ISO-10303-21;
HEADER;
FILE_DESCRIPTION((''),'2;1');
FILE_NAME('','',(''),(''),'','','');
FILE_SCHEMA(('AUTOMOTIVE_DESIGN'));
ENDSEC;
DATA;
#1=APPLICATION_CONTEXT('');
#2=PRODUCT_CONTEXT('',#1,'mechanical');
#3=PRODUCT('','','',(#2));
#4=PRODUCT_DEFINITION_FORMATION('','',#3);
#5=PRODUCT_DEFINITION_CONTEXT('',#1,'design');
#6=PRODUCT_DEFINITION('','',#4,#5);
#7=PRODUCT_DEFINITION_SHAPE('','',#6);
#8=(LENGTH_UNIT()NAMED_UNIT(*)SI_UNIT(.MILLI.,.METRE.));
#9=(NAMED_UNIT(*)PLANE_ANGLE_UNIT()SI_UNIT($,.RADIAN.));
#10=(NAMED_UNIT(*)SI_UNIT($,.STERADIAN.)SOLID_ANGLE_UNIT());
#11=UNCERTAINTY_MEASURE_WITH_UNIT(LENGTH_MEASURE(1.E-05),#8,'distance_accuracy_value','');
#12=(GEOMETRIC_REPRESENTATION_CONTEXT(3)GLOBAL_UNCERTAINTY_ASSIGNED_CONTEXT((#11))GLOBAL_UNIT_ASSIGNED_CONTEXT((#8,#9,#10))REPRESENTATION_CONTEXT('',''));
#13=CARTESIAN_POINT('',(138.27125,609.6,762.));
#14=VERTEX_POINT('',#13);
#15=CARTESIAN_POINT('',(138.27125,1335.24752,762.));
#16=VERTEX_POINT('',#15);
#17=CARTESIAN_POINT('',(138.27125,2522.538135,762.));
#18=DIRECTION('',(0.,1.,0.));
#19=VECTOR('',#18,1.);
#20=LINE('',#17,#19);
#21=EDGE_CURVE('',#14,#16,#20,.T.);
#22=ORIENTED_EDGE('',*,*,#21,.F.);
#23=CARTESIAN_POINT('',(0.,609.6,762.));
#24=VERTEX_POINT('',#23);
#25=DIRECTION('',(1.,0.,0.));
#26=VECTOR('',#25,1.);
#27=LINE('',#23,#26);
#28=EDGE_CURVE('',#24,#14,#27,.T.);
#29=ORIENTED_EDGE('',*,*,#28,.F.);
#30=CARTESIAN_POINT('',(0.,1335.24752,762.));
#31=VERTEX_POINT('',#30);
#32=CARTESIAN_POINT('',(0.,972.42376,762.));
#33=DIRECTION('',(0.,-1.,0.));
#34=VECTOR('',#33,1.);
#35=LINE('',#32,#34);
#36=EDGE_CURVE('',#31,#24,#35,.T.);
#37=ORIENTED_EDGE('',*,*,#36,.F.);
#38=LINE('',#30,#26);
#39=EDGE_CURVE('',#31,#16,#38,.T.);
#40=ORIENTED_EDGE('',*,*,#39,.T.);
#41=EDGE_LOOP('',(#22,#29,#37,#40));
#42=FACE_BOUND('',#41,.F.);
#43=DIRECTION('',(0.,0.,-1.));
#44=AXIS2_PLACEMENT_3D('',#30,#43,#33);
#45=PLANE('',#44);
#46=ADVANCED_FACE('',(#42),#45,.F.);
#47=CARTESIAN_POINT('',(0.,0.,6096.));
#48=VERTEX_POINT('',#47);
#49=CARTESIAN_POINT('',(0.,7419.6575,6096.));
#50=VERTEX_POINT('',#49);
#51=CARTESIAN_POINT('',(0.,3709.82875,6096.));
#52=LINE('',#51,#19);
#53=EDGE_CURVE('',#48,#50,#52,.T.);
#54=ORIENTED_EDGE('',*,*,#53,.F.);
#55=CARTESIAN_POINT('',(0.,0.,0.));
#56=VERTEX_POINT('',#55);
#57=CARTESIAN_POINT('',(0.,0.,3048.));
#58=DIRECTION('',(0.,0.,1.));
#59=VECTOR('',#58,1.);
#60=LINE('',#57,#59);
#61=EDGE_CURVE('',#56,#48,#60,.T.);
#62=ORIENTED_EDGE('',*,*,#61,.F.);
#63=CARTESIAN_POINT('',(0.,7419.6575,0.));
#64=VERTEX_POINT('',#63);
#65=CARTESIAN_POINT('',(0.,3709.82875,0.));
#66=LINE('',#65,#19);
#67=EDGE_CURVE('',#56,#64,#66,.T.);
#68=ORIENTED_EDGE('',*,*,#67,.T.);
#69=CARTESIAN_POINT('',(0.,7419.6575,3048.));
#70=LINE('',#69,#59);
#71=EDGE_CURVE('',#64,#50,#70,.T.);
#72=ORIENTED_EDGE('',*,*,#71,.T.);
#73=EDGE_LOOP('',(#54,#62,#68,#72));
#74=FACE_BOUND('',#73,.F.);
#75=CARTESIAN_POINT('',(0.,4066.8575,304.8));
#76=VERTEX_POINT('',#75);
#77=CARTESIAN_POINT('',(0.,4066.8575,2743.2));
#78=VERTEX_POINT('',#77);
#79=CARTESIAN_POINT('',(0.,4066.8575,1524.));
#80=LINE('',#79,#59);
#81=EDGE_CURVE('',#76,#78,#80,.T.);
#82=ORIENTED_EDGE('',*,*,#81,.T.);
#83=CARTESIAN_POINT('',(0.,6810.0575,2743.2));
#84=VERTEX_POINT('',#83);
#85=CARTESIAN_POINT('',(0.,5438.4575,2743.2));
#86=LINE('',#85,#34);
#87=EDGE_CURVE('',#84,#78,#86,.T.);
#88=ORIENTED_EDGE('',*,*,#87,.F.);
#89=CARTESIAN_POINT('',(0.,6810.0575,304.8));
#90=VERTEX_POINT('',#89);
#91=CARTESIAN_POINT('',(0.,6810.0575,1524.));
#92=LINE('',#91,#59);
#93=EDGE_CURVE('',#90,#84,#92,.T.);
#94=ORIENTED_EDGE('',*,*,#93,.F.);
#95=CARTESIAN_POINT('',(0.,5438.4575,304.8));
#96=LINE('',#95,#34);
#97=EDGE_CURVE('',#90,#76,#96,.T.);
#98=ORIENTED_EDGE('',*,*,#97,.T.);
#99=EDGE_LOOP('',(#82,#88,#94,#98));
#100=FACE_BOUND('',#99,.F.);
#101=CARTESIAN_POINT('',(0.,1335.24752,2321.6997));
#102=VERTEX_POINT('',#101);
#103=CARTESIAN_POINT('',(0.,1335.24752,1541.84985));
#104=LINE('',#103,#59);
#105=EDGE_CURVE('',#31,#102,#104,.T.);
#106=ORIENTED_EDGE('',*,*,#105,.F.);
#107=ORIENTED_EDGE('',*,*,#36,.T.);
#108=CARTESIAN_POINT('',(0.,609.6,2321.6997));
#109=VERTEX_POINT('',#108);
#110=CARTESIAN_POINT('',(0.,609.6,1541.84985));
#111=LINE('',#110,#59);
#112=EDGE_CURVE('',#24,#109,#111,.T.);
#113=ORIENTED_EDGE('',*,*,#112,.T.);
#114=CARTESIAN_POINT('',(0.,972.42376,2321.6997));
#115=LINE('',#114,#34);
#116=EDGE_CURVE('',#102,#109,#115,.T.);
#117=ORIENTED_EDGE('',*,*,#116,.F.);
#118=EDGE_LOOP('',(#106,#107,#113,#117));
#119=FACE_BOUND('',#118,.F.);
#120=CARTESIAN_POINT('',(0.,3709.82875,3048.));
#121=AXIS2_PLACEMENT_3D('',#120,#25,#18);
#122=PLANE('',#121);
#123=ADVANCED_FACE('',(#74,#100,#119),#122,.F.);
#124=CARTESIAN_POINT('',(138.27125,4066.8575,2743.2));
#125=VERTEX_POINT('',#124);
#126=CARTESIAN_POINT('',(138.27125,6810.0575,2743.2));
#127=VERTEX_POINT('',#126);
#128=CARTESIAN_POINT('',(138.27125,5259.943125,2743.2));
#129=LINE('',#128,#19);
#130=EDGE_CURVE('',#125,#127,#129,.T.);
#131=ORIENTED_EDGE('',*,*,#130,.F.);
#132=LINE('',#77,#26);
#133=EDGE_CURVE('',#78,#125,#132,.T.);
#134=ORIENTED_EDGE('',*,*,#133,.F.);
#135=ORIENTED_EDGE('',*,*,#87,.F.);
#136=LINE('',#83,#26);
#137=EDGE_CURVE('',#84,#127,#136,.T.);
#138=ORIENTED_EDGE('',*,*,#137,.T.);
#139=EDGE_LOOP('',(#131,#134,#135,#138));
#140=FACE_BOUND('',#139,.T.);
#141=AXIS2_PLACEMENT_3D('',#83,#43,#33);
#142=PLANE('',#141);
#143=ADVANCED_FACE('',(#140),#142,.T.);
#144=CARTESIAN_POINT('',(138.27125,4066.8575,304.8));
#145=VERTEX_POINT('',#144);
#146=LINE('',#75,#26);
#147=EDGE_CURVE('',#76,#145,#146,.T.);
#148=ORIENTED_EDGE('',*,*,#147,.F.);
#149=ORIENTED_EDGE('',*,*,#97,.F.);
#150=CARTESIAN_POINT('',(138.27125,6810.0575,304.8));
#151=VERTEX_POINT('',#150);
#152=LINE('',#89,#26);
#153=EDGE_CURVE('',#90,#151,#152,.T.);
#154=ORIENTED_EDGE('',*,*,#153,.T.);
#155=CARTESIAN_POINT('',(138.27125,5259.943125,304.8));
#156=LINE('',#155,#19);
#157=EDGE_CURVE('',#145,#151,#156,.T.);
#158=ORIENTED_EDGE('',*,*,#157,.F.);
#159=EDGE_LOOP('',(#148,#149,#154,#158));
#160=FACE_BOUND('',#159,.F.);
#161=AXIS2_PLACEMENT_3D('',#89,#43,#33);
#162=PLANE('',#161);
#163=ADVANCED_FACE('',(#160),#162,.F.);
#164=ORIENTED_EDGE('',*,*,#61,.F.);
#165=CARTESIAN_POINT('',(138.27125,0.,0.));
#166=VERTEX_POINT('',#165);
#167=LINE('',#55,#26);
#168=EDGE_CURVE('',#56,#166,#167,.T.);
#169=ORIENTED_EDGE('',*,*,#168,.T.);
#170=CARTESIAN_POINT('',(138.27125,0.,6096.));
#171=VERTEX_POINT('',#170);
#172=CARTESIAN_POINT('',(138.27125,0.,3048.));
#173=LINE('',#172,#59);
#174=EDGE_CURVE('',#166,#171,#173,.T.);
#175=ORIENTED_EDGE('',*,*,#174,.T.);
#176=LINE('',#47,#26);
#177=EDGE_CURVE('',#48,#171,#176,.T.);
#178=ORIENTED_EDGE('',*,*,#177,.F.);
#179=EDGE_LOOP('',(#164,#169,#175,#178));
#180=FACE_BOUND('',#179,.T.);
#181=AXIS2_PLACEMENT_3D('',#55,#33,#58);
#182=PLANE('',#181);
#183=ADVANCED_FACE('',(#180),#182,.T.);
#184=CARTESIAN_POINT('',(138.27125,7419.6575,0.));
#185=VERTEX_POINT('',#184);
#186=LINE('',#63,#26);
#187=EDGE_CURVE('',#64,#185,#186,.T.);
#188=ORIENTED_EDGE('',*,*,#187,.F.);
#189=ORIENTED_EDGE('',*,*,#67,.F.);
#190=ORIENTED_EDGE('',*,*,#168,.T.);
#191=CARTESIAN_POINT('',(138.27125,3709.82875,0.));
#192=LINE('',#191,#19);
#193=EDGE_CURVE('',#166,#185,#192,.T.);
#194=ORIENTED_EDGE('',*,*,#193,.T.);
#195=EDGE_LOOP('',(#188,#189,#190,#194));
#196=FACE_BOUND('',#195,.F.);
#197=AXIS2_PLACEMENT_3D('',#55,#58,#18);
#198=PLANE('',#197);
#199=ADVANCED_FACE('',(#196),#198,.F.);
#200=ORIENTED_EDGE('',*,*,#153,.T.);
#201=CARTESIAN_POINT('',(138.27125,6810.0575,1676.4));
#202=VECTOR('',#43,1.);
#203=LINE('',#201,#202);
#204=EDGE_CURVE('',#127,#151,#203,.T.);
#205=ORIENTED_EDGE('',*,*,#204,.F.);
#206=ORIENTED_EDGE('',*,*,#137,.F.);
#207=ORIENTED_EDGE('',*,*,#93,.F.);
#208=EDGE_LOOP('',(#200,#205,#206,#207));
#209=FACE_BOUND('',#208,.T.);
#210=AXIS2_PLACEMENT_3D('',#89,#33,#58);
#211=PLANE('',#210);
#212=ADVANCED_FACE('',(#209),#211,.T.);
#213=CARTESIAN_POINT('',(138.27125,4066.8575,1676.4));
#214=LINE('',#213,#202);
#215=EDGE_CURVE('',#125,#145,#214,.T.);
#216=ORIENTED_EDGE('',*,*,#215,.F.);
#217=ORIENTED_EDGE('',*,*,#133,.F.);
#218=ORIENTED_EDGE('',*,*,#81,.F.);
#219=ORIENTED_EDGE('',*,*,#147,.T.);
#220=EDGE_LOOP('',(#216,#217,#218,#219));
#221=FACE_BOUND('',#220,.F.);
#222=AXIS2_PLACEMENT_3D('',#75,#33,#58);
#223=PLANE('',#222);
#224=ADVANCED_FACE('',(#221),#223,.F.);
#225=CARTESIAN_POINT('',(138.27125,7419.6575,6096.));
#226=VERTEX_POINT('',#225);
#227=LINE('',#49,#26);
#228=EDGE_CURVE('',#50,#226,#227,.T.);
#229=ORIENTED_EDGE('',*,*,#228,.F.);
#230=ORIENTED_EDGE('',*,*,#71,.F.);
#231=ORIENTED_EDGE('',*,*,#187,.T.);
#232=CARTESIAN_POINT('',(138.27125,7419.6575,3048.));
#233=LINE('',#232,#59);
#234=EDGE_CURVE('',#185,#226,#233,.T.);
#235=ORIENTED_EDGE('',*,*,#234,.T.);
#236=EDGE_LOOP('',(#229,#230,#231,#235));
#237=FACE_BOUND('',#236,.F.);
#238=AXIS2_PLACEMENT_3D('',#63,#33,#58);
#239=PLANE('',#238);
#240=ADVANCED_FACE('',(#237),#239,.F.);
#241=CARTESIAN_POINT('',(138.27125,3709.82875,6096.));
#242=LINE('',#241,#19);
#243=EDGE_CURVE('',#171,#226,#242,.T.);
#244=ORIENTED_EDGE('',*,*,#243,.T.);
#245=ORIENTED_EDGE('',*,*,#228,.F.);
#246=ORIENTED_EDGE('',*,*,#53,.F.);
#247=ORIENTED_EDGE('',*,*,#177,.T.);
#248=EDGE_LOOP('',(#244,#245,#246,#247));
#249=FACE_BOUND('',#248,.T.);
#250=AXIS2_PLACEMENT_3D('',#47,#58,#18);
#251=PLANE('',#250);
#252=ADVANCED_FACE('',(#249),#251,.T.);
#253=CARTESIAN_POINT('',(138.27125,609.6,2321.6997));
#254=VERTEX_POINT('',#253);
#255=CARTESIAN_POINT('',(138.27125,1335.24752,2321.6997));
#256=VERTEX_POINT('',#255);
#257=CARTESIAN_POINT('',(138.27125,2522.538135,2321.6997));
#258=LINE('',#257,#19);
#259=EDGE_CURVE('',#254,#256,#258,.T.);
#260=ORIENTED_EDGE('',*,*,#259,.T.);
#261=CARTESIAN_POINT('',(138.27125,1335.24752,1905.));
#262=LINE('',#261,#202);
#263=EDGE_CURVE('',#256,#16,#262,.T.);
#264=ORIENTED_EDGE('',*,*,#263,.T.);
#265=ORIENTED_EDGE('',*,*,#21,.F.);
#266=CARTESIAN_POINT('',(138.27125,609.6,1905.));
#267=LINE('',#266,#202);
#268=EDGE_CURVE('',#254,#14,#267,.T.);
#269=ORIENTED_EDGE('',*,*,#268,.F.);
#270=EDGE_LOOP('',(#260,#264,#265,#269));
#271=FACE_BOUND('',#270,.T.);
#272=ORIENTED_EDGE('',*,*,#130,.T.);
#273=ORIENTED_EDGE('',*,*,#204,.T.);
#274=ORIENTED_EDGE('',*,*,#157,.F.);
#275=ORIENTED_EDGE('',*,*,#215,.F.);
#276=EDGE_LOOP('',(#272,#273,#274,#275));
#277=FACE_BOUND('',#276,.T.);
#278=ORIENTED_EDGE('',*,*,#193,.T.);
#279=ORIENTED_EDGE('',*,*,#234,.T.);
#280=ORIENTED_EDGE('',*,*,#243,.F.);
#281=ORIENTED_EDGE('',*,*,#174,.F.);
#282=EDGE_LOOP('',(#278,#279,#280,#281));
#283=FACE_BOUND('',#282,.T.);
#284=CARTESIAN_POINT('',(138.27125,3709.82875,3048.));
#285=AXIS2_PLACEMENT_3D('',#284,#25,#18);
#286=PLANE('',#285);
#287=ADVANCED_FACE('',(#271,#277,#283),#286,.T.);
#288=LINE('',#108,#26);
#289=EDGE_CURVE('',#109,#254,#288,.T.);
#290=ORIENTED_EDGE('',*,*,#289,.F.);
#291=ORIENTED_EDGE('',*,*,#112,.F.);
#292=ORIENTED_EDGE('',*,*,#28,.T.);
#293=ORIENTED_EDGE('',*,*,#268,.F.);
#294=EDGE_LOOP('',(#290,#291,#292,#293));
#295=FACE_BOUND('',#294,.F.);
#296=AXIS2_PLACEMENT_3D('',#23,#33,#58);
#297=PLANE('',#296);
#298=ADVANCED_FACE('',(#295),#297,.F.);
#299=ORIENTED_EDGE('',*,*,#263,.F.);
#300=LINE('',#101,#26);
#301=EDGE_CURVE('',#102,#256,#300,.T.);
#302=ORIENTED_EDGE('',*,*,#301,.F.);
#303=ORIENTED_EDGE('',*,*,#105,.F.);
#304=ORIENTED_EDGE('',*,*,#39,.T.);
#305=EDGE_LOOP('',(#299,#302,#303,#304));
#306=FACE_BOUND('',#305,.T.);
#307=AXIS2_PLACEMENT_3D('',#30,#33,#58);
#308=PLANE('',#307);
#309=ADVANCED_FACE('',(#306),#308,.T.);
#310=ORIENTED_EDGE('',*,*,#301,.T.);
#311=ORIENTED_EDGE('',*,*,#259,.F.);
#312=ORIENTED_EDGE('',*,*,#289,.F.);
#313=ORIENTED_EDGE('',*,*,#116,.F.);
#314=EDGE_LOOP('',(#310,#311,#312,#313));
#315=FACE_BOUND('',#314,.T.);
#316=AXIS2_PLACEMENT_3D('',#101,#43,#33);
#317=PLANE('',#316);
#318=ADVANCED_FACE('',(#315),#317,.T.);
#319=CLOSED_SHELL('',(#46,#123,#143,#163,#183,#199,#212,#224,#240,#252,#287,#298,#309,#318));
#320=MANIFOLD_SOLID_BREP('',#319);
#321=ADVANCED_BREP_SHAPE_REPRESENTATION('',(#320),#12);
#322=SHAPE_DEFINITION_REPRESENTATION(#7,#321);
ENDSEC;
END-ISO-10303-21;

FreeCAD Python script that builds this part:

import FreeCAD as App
import Part
import Sketcher
from FreeCAD import Vector
Q = App.Units.Quantity

doc = App.newDocument("Part")
body = doc.addObject("PartDesign::Body", "Body")

# Sketch on YZ plane
sketch1 = body.newObject("Sketcher::SketchObject", "Sketch")
sketch1.AttachmentSupport = (doc.getObject("YZ_Plane"), [""])
sketch1.MapMode = "FlatFace"
sketch1.addGeometry([
    Part.LineSegment(Vector(0, 6096, 0), Vector(0, 0, 0)),
    Part.LineSegment(Vector(0, 0, 0), Vector(7419.6575, 0, 0)),
    Part.LineSegment(Vector(7419.6575, 0, 0), Vector(7419.6575, 6096, 0)),
    Part.LineSegment(Vector(7419.6575, 6096, 0), Vector(0, 6096, 0)),
], False)
sketch1.addConstraint([
    Sketcher.Constraint("Coincident", 0, 2, 1, 1),
    Sketcher.Constraint("Coincident", 1, 2, 2, 1),
    Sketcher.Constraint("Coincident", 2, 2, 3, 1),
    Sketcher.Constraint("Coincident", 3, 2, 0, 1),
    Sketcher.Constraint("Vertical", 0),
    Sketcher.Constraint("Horizontal", 1),
    Sketcher.Constraint("Vertical", 2),
    Sketcher.Constraint("Horizontal", 3),
    Sketcher.Constraint("Coincident", 0, 2, -1, 1),
    Sketcher.Constraint("DistanceY", 0, 2, 0, 1, Q("240 in")),
    Sketcher.Constraint("DistanceX", 1, 1, 1, 2, Q("292.1125 in")),
])
pad1 = body.newObject("PartDesign::Pad", "Pad")
pad1.Profile = sketch1
pad1.Length = 138.27125

# Sketch on YZ plane
sketch2 = body.newObject("Sketcher::SketchObject", "Sketch001")
sketch2.AttachmentSupport = (doc.getObject("YZ_Plane"), [""])
sketch2.MapMode = "FlatFace"
sketch2.addGeometry([
    Part.LineSegment(Vector(6810.0575, 2743.2, 0), Vector(6810.0575, 304.8, 0)),  # 0
    Part.LineSegment(Vector(6810.0575, 304.8, 0), Vector(4066.8575, 304.8, 0)),  # 1
    Part.LineSegment(Vector(4066.8575, 304.8, 0), Vector(4066.8575, 2743.2, 0)),  # 2
    Part.LineSegment(Vector(4066.8575, 2743.2, 0), Vector(6810.0575, 2743.2, 0)),  # 3
    Part.LineSegment(Vector(1335.24752, 2321.6997, 0), Vector(1335.24752, 762, 0)),  # 4
    Part.LineSegment(Vector(1335.24752, 762, 0), Vector(609.6, 762, 0)),  # 5
    Part.LineSegment(Vector(609.6, 762, 0), Vector(609.6, 2321.6997, 0)),  # 6
    Part.LineSegment(Vector(609.6, 2321.6997, 0), Vector(1335.24752, 2321.6997, 0)),  # 7
], False)
sketch2.addConstraint([
    Sketcher.Constraint("Coincident", 0, 2, 1, 1),
    Sketcher.Constraint("Coincident", 1, 2, 2, 1),
    Sketcher.Constraint("Coincident", 2, 2, 3, 1),
    Sketcher.Constraint("Coincident", 3, 2, 0, 1),
    Sketcher.Constraint("Coincident", 4, 2, 5, 1),
    Sketcher.Constraint("Coincident", 5, 2, 6, 1),
    Sketcher.Constraint("Coincident", 6, 2, 7, 1),
    Sketcher.Constraint("Coincident", 7, 2, 4, 1),
    Sketcher.Constraint("Vertical", 0),
    Sketcher.Constraint("Horizontal", 1),
    Sketcher.Constraint("Vertical", 2),
    Sketcher.Constraint("Horizontal", 3),
    Sketcher.Constraint("Vertical", 4),
    Sketcher.Constraint("Horizontal", 5),
    Sketcher.Constraint("Vertical", 6),
    Sketcher.Constraint("Horizontal", 7),
    Sketcher.Constraint("DistanceX", 1, 2, 1, 1, Q("108 in")),
    Sketcher.Constraint("DistanceY", 0, 2, 0, 1, Q("96 in")),
    Sketcher.Constraint("DistanceY", -1, 1, 0, 2, Q("12 in")),
    Sketcher.Constraint("DistanceY", -1, 1, 4, 2, Q("30 in")),
    Sketcher.Constraint("DistanceX", -1, 1, 5, 2, Q("24 in")),
    Sketcher.Constraint("DistanceX", 5, 2, 5, 1, Q("28.5688 in")),
    Sketcher.Constraint("DistanceY", 4, 2, 4, 1, Q("61.4055 in")),
    Sketcher.Constraint("DistanceX", -1, 1, 0, 2, Q("268.1125 in")),
])
pocket1 = body.newObject("PartDesign::Pocket", "Pocket")
pocket1.Profile = sketch2
pocket1.Type = "ThroughAll"
pocket1.Reversed = True

doc.recompute()
